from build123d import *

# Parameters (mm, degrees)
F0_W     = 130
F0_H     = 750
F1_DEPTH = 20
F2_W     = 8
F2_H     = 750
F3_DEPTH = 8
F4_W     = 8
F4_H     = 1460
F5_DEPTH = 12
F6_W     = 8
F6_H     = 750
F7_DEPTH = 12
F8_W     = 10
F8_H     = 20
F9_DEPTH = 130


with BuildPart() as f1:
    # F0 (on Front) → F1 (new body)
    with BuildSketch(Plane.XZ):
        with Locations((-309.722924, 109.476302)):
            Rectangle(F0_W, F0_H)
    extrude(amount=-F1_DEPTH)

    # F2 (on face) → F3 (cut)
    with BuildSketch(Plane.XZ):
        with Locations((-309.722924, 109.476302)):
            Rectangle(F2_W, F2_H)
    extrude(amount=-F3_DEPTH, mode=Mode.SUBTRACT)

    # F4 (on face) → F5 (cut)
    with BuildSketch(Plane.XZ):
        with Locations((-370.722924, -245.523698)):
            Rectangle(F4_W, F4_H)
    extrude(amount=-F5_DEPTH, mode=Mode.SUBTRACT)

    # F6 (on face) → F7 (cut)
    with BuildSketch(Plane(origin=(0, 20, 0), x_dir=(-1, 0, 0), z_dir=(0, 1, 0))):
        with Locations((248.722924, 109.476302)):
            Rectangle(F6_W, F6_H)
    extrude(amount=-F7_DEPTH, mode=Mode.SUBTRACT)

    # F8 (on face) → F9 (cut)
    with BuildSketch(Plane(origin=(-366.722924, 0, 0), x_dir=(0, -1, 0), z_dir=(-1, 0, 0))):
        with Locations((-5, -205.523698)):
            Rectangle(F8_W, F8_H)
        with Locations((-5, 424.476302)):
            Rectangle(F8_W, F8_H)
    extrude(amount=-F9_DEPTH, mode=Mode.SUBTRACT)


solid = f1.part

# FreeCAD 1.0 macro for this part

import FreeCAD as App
import Part
import Sketcher
Q = App.Units.Quantity


def add_polygon(sketch, points):
    """Adds a closed chain of lines whose ends are joined by coincident constraints."""
    first, n = sketch.GeometryCount, len(points)
    for a, b in zip(points, points[1:] + points[:1]):
        sketch.addGeometry(Part.LineSegment(App.Vector(*a, 0), App.Vector(*b, 0)), False)
    for i in range(n):
        sketch.addConstraint(Sketcher.Constraint("Coincident", first + i, 2, first + (i + 1) % n, 1))

doc = App.newDocument("Part")
body = doc.addObject("PartDesign::Body", "Body")

sketch1 = body.newObject("Sketcher::SketchObject", "Sketch")
sketch1.AttachmentSupport = (doc.getObject("XZ_Plane"), [""])
sketch1.MapMode = "FlatFace"
add_polygon(sketch1, [(-374.722924, 484.476302), (-374.722924, -265.523698), (-244.722924, -265.523698), (-244.722924, 484.476302)])
sketch1.addConstraint([
    Sketcher.Constraint("Vertical", 0),
    Sketcher.Constraint("Horizontal", 1),
    Sketcher.Constraint("Vertical", 2),
    Sketcher.Constraint("Horizontal", 3),
    Sketcher.Constraint("DistanceX", 1, 1, 1, 2, Q("130 mm")),
    Sketcher.Constraint("DistanceY", 0, 2, 0, 1, Q("750 mm")),
    Sketcher.Constraint("DistanceY", 0, 2, -1, 1, Q("265.523698 mm")),
    Sketcher.Constraint("DistanceX", 0, 2, -1, 1, Q("374.722924 mm")),
])
pad1 = body.newObject("PartDesign::Pad", "Pad")
pad1.Profile = sketch1
pad1.Length = 20
pad1.Reversed = True

sketch2 = body.newObject("Sketcher::SketchObject", "Sketch001")
sketch2.AttachmentSupport = (doc.getObject("XZ_Plane"), [""])
sketch2.MapMode = "FlatFace"
add_polygon(sketch2, [(-313.722924, 484.476302), (-313.722924, -265.523698), (-305.722924, -265.523698), (-305.722924, 484.476302)])
sketch2.addConstraint([
    Sketcher.Constraint("Vertical", 0),
    Sketcher.Constraint("Horizontal", 1),
    Sketcher.Constraint("Vertical", 2),
    Sketcher.Constraint("Horizontal", 3),
    Sketcher.Constraint("DistanceX", 1, 1, 1, 2, Q("8 mm")),
    Sketcher.Constraint("DistanceY", 0, 2, 0, 1, Q("750 mm")),
    Sketcher.Constraint("DistanceY", 0, 2, -1, 1, Q("265.523698 mm")),
    Sketcher.Constraint("DistanceX", 0, 2, -1, 1, Q("313.722924 mm")),
])
pocket1 = body.newObject("PartDesign::Pocket", "Pocket")
pocket1.Profile = sketch2
pocket1.Length = 8

sketch3 = body.newObject("Sketcher::SketchObject", "Sketch002")
sketch3.AttachmentSupport = (doc.getObject("XZ_Plane"), [""])
sketch3.MapMode = "FlatFace"
add_polygon(sketch3, [(-374.722924, 484.476302), (-374.722924, -975.523698), (-366.722924, -975.523698), (-366.722924, 484.476302)])
sketch3.addConstraint([
    Sketcher.Constraint("Vertical", 0),
    Sketcher.Constraint("Horizontal", 1),
    Sketcher.Constraint("Vertical", 2),
    Sketcher.Constraint("Horizontal", 3),
    Sketcher.Constraint("DistanceX", 1, 1, 1, 2, Q("8 mm")),
    Sketcher.Constraint("DistanceY", 0, 2, 0, 1, Q("1460 mm")),
    Sketcher.Constraint("DistanceY", 0, 2, -1, 1, Q("975.523698 mm")),
    Sketcher.Constraint("DistanceX", 0, 2, -1, 1, Q("374.722924 mm")),
])
pocket2 = body.newObject("PartDesign::Pocket", "Pocket001")
pocket2.Profile = sketch3
pocket2.Length = 12

sketch4 = body.newObject("Sketcher::SketchObject", "Sketch003")
sketch4.AttachmentSupport = (doc.getObject("XZ_Plane"), [""])
sketch4.MapMode = "FlatFace"
sketch4.AttachmentOffset = App.Placement(App.Vector(0, 0, -20), App.Rotation())
add_polygon(sketch4, [(-244.722924, 484.476302), (-244.722924, -265.523698), (-252.722924, -265.523698), (-252.722924, 484.476302)])
sketch4.addConstraint([
    Sketcher.Constraint("Vertical", 0),
    Sketcher.Constraint("Horizontal", 1),
    Sketcher.Constraint("Vertical", 2),
    Sketcher.Constraint("Horizontal", 3),
    Sketcher.Constraint("DistanceX", 1, 2, 1, 1, Q("8 mm")),
    Sketcher.Constraint("DistanceY", 0, 2, 0, 1, Q("750 mm")),
    Sketcher.Constraint("DistanceY", 0, 2, -1, 1, Q("265.523698 mm")),
    Sketcher.Constraint("DistanceX", 0, 2, -1, 1, Q("244.722924 mm")),
])
pocket3 = body.newObject("PartDesign::Pocket", "Pocket002")
pocket3.Profile = sketch4
pocket3.Length = 12
pocket3.Reversed = True

sketch5 = body.newObject("Sketcher::SketchObject", "Sketch004")
sketch5.AttachmentSupport = (doc.getObject("YZ_Plane"), [""])
sketch5.MapMode = "FlatFace"
sketch5.AttachmentOffset = App.Placement(App.Vector(0, 0, -366.722924), App.Rotation())
add_polygon(sketch5, [(10, -195.523698), (10, -215.523698), (0, -215.523698), (0, -195.523698)])
add_polygon(sketch5, [(10, 434.476302), (10, 414.476302), (0, 414.476302), (0, 434.476302)])
sketch5.addConstraint([
    Sketcher.Constraint("Vertical", 0),
    Sketcher.Constraint("Horizontal", 1),
    Sketcher.Constraint("Vertical", 2),
    Sketcher.Constraint("Horizontal", 3),
    Sketcher.Constraint("Vertical", 4),
    Sketcher.Constraint("Horizontal", 5),
    Sketcher.Constraint("Vertical", 6),
    Sketcher.Constraint("Horizontal", 7),
    Sketcher.Constraint("PointOnObject", 1, 2, -2),
    Sketcher.Constraint("PointOnObject", 5, 2, -2),
    Sketcher.Constraint("Vertical", 3, 2, 4, 2),
    Sketcher.Constraint("Equal", 2, 4),
    Sketcher.Constraint("DistanceX", 1, 2, 1, 1, Q("10 mm")),
    Sketcher.Constraint("DistanceY", 0, 2, 0, 1, Q("20 mm")),
    Sketcher.Constraint("DistanceY", 3, 2, 4, 2, Q("610 mm")),
    Sketcher.Constraint("DistanceY", 0, 2, -1, 1, Q("215.523698 mm")),
])
pocket4 = body.newObject("PartDesign::Pocket", "Pocket003")
pocket4.Profile = sketch5
pocket4.Length = 130
pocket4.Reversed = True

doc.recompute()
